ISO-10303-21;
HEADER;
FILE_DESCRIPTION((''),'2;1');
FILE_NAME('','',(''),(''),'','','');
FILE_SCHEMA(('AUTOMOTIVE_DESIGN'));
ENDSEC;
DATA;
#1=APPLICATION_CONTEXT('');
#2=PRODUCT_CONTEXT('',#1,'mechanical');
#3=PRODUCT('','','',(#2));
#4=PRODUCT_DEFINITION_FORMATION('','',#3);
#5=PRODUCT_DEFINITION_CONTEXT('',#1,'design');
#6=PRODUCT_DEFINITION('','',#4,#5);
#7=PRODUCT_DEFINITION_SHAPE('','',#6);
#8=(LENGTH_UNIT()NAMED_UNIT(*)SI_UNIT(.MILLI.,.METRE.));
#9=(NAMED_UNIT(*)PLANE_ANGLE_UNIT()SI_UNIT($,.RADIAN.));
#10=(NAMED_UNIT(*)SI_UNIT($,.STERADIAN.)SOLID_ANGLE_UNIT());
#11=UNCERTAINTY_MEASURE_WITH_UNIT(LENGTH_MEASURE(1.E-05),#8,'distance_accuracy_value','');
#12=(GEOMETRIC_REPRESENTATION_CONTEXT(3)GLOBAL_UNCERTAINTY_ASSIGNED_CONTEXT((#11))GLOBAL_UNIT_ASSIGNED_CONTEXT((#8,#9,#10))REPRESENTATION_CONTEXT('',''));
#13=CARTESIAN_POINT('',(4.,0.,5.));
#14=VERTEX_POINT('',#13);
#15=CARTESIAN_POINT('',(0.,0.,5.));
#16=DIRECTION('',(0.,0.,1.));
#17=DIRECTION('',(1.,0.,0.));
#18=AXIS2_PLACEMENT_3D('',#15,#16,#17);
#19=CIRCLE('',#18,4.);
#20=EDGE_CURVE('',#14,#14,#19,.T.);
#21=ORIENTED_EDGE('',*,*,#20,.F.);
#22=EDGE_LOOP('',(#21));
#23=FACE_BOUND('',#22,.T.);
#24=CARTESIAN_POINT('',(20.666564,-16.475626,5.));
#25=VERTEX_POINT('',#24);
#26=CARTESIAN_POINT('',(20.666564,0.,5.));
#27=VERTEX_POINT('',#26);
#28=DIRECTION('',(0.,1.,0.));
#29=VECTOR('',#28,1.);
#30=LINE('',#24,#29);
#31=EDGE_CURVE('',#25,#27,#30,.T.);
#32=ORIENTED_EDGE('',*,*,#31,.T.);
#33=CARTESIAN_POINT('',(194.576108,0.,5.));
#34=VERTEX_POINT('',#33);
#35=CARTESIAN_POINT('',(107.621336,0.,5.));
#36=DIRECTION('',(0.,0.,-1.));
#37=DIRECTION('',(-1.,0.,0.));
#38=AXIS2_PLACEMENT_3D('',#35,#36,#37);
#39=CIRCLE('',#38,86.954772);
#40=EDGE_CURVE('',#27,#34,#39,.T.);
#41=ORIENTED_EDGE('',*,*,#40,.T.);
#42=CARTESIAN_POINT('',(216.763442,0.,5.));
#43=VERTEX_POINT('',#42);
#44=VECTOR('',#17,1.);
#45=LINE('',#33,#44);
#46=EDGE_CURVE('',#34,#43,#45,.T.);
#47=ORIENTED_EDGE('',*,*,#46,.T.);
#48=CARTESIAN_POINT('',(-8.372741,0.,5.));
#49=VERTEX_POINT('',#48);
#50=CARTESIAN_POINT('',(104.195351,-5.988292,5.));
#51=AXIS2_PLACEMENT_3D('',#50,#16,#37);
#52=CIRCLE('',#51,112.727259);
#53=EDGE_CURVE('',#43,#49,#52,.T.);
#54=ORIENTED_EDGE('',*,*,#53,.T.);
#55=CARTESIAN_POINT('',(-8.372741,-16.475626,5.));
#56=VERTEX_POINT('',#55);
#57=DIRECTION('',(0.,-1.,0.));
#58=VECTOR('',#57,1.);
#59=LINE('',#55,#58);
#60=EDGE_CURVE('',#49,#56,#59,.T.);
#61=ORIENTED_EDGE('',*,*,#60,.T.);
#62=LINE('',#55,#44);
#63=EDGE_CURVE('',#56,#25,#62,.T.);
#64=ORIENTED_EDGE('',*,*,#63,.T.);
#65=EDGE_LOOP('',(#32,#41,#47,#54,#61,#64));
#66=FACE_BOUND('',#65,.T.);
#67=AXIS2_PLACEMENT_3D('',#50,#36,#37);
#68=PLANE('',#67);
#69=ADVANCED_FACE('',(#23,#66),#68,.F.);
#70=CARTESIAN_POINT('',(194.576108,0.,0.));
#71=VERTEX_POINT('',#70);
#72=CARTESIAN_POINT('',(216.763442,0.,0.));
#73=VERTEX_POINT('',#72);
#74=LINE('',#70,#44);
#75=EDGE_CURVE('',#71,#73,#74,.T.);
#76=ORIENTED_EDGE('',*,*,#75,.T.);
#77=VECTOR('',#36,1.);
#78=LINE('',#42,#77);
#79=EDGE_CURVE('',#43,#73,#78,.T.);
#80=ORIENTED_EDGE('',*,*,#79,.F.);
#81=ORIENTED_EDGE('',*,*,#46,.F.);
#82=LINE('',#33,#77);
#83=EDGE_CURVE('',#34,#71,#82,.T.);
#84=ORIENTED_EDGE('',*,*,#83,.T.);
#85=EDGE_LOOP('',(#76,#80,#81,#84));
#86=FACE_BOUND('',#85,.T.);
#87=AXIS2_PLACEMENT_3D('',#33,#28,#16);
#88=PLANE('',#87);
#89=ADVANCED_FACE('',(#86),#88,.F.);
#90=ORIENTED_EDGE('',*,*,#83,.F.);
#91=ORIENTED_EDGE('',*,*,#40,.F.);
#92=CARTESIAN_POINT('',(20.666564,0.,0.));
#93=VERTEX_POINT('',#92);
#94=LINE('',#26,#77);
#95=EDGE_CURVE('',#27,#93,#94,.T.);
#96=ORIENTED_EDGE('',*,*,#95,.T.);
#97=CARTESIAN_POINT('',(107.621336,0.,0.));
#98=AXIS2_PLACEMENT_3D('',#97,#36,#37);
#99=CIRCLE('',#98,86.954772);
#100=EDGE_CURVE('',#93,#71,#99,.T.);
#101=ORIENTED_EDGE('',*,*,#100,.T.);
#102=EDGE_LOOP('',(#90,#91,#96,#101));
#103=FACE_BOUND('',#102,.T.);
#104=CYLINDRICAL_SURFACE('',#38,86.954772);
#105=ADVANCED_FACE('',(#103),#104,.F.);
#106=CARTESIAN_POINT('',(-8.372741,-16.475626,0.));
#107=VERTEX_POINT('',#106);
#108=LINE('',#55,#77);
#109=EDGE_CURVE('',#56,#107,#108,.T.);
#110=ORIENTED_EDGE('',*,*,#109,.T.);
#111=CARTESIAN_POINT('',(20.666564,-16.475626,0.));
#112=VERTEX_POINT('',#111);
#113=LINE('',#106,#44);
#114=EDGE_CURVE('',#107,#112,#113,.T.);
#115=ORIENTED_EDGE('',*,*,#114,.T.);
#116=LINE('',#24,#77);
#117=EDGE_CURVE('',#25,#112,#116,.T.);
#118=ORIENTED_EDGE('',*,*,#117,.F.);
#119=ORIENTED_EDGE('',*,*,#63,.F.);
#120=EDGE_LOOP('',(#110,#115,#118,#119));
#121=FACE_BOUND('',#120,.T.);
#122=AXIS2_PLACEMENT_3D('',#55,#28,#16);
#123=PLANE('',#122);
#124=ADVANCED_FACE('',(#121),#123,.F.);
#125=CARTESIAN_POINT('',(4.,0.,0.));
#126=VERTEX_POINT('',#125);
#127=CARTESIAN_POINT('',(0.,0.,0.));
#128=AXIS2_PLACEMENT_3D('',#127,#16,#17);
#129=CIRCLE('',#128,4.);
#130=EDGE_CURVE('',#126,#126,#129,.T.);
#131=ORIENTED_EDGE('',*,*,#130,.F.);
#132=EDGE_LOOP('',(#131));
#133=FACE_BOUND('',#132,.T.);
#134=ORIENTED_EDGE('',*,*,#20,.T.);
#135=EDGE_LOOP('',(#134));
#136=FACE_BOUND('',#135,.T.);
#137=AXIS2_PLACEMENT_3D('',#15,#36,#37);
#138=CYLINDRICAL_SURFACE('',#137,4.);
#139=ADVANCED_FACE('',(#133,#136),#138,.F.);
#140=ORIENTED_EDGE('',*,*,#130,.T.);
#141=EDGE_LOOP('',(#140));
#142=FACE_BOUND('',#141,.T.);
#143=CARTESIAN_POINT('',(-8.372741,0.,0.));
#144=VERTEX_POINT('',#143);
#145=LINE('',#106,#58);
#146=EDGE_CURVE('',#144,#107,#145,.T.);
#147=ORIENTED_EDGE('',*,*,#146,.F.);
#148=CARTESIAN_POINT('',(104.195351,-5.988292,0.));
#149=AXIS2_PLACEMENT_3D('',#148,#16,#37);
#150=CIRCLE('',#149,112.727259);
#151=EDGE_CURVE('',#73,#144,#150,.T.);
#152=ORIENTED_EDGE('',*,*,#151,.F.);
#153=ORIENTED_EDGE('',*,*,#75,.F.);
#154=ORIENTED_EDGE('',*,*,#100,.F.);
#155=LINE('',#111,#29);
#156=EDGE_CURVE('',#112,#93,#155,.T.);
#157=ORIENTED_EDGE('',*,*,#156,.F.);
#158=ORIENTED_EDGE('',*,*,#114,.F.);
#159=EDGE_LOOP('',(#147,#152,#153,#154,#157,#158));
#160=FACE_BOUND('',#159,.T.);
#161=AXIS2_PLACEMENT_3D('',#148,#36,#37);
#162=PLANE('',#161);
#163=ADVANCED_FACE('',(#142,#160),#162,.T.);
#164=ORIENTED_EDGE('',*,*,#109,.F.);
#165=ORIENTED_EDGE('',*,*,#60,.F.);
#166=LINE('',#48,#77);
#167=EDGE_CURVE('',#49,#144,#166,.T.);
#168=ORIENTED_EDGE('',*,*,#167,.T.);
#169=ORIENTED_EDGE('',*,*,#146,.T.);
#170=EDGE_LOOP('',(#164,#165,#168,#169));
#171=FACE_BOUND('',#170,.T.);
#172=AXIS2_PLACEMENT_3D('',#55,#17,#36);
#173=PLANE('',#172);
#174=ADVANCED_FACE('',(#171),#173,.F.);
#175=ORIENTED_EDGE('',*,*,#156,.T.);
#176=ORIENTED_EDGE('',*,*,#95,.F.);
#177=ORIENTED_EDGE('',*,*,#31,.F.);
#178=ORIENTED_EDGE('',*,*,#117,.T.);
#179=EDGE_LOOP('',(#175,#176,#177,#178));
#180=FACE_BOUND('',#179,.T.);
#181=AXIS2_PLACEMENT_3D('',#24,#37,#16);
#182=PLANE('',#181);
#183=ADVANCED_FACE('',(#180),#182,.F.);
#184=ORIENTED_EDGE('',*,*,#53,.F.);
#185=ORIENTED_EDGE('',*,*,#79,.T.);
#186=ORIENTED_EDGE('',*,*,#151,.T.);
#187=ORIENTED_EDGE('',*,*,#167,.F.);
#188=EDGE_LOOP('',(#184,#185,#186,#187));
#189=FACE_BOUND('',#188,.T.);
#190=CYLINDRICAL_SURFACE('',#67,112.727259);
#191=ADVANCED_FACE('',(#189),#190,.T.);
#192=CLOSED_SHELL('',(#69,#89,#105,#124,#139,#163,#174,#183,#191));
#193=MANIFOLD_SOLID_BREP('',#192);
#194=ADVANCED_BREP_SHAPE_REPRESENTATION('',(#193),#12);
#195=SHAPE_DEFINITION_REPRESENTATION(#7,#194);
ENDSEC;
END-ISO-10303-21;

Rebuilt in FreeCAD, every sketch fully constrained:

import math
import FreeCAD as App
import Part
import Sketcher

doc = App.newDocument("Part")
params = doc.addObject("Spreadsheet::Sheet", "Params")
for row, (alias, value) in enumerate([
    ("sketch1_diameter", "8 mm"),
    ("pad1_length", "5 mm"),
], start=1):
    params.set(f"A{row}", alias)
    params.set(f"B{row}", "=" + value)
    params.setAlias(f"B{row}", alias)

body = doc.addObject("PartDesign::Body", "Body")

sketch1 = body.newObject("Sketcher::SketchObject", "Sketch")
sketch1.AttachmentSupport = (doc.getObject("XY_Plane"), [""])
sketch1.MapMode = "FlatFace"
sketch1.addGeometry([
    Part.LineSegment(App.Vector(-8.4, -16.5, 0), App.Vector(20.7, -16.5, 0)),
    Part.LineSegment(App.Vector(20.7, -16.5, 0), App.Vector(20.7, 0, 0)),
    Part.ArcOfCircle(Part.Circle(App.Vector(107.6, 0, 0), App.Vector(0, 0, 1), 87), math.radians(0), math.radians(180)),
    Part.LineSegment(App.Vector(194.6, 0, 0), App.Vector(216.8, 0, 0)),
    Part.ArcOfCircle(Part.Circle(App.Vector(104.2, -6, 0), App.Vector(0, 0, 1), 112.7), math.radians(3), math.radians(177)),
    Part.LineSegment(App.Vector(-8.4, 0, 0), App.Vector(-8.4, -16.5, 0)),
    Part.Circle(App.Vector(0, 0, 0), App.Vector(0, 0, 1), 4),
], False)
sketch1.addConstraint([
    Sketcher.Constraint("Coincident", 0, 2, 1, 1),
    Sketcher.Constraint("Tangent", 1, 2, 2, 2),
    Sketcher.Constraint("Coincident", 2, 1, 3, 1),
    Sketcher.Constraint("Coincident", 3, 2, 4, 1),
    Sketcher.Constraint("Coincident", 4, 2, 5, 1),
    Sketcher.Constraint("Coincident", 5, 2, 0, 1),
    Sketcher.Constraint("Horizontal", 0),
    Sketcher.Constraint("Vertical", 1),
    Sketcher.Constraint("Horizontal", 3),
    Sketcher.Constraint("Vertical", 5),
    Sketcher.Constraint("Coincident", 6, 3, -1, 1),
    Sketcher.Constraint("PointOnObject", 2, 3, -1),
    Sketcher.Constraint("PointOnObject", 2, 1, -1),
    Sketcher.Constraint("PointOnObject", 4, 2, -1),
    Sketcher.Constraint("Diameter", 6, 8.0),
    Sketcher.Constraint("Radius", 4, 112.727259),
    Sketcher.Constraint("Radius", 2, 86.954772),
    Sketcher.Constraint("DistanceX", 0, 1, 0, 2, 29.039305),
    Sketcher.Constraint("DistanceX", 3, 1, 3, 2, 22.187334),
    Sketcher.Constraint("DistanceY", 1, 1, 1, 2, 16.475626),
    Sketcher.Constraint("DistanceX", -1, 1, 4, 3, 104.195351),
])
sketch1.setExpression("Constraints[14]", "Params.sketch1_diameter")
pad1 = body.newObject("PartDesign::Pad", "Pad")
pad1.Profile = sketch1
pad1.setExpression("Length", "Params.pad1_length")

doc.recompute()
